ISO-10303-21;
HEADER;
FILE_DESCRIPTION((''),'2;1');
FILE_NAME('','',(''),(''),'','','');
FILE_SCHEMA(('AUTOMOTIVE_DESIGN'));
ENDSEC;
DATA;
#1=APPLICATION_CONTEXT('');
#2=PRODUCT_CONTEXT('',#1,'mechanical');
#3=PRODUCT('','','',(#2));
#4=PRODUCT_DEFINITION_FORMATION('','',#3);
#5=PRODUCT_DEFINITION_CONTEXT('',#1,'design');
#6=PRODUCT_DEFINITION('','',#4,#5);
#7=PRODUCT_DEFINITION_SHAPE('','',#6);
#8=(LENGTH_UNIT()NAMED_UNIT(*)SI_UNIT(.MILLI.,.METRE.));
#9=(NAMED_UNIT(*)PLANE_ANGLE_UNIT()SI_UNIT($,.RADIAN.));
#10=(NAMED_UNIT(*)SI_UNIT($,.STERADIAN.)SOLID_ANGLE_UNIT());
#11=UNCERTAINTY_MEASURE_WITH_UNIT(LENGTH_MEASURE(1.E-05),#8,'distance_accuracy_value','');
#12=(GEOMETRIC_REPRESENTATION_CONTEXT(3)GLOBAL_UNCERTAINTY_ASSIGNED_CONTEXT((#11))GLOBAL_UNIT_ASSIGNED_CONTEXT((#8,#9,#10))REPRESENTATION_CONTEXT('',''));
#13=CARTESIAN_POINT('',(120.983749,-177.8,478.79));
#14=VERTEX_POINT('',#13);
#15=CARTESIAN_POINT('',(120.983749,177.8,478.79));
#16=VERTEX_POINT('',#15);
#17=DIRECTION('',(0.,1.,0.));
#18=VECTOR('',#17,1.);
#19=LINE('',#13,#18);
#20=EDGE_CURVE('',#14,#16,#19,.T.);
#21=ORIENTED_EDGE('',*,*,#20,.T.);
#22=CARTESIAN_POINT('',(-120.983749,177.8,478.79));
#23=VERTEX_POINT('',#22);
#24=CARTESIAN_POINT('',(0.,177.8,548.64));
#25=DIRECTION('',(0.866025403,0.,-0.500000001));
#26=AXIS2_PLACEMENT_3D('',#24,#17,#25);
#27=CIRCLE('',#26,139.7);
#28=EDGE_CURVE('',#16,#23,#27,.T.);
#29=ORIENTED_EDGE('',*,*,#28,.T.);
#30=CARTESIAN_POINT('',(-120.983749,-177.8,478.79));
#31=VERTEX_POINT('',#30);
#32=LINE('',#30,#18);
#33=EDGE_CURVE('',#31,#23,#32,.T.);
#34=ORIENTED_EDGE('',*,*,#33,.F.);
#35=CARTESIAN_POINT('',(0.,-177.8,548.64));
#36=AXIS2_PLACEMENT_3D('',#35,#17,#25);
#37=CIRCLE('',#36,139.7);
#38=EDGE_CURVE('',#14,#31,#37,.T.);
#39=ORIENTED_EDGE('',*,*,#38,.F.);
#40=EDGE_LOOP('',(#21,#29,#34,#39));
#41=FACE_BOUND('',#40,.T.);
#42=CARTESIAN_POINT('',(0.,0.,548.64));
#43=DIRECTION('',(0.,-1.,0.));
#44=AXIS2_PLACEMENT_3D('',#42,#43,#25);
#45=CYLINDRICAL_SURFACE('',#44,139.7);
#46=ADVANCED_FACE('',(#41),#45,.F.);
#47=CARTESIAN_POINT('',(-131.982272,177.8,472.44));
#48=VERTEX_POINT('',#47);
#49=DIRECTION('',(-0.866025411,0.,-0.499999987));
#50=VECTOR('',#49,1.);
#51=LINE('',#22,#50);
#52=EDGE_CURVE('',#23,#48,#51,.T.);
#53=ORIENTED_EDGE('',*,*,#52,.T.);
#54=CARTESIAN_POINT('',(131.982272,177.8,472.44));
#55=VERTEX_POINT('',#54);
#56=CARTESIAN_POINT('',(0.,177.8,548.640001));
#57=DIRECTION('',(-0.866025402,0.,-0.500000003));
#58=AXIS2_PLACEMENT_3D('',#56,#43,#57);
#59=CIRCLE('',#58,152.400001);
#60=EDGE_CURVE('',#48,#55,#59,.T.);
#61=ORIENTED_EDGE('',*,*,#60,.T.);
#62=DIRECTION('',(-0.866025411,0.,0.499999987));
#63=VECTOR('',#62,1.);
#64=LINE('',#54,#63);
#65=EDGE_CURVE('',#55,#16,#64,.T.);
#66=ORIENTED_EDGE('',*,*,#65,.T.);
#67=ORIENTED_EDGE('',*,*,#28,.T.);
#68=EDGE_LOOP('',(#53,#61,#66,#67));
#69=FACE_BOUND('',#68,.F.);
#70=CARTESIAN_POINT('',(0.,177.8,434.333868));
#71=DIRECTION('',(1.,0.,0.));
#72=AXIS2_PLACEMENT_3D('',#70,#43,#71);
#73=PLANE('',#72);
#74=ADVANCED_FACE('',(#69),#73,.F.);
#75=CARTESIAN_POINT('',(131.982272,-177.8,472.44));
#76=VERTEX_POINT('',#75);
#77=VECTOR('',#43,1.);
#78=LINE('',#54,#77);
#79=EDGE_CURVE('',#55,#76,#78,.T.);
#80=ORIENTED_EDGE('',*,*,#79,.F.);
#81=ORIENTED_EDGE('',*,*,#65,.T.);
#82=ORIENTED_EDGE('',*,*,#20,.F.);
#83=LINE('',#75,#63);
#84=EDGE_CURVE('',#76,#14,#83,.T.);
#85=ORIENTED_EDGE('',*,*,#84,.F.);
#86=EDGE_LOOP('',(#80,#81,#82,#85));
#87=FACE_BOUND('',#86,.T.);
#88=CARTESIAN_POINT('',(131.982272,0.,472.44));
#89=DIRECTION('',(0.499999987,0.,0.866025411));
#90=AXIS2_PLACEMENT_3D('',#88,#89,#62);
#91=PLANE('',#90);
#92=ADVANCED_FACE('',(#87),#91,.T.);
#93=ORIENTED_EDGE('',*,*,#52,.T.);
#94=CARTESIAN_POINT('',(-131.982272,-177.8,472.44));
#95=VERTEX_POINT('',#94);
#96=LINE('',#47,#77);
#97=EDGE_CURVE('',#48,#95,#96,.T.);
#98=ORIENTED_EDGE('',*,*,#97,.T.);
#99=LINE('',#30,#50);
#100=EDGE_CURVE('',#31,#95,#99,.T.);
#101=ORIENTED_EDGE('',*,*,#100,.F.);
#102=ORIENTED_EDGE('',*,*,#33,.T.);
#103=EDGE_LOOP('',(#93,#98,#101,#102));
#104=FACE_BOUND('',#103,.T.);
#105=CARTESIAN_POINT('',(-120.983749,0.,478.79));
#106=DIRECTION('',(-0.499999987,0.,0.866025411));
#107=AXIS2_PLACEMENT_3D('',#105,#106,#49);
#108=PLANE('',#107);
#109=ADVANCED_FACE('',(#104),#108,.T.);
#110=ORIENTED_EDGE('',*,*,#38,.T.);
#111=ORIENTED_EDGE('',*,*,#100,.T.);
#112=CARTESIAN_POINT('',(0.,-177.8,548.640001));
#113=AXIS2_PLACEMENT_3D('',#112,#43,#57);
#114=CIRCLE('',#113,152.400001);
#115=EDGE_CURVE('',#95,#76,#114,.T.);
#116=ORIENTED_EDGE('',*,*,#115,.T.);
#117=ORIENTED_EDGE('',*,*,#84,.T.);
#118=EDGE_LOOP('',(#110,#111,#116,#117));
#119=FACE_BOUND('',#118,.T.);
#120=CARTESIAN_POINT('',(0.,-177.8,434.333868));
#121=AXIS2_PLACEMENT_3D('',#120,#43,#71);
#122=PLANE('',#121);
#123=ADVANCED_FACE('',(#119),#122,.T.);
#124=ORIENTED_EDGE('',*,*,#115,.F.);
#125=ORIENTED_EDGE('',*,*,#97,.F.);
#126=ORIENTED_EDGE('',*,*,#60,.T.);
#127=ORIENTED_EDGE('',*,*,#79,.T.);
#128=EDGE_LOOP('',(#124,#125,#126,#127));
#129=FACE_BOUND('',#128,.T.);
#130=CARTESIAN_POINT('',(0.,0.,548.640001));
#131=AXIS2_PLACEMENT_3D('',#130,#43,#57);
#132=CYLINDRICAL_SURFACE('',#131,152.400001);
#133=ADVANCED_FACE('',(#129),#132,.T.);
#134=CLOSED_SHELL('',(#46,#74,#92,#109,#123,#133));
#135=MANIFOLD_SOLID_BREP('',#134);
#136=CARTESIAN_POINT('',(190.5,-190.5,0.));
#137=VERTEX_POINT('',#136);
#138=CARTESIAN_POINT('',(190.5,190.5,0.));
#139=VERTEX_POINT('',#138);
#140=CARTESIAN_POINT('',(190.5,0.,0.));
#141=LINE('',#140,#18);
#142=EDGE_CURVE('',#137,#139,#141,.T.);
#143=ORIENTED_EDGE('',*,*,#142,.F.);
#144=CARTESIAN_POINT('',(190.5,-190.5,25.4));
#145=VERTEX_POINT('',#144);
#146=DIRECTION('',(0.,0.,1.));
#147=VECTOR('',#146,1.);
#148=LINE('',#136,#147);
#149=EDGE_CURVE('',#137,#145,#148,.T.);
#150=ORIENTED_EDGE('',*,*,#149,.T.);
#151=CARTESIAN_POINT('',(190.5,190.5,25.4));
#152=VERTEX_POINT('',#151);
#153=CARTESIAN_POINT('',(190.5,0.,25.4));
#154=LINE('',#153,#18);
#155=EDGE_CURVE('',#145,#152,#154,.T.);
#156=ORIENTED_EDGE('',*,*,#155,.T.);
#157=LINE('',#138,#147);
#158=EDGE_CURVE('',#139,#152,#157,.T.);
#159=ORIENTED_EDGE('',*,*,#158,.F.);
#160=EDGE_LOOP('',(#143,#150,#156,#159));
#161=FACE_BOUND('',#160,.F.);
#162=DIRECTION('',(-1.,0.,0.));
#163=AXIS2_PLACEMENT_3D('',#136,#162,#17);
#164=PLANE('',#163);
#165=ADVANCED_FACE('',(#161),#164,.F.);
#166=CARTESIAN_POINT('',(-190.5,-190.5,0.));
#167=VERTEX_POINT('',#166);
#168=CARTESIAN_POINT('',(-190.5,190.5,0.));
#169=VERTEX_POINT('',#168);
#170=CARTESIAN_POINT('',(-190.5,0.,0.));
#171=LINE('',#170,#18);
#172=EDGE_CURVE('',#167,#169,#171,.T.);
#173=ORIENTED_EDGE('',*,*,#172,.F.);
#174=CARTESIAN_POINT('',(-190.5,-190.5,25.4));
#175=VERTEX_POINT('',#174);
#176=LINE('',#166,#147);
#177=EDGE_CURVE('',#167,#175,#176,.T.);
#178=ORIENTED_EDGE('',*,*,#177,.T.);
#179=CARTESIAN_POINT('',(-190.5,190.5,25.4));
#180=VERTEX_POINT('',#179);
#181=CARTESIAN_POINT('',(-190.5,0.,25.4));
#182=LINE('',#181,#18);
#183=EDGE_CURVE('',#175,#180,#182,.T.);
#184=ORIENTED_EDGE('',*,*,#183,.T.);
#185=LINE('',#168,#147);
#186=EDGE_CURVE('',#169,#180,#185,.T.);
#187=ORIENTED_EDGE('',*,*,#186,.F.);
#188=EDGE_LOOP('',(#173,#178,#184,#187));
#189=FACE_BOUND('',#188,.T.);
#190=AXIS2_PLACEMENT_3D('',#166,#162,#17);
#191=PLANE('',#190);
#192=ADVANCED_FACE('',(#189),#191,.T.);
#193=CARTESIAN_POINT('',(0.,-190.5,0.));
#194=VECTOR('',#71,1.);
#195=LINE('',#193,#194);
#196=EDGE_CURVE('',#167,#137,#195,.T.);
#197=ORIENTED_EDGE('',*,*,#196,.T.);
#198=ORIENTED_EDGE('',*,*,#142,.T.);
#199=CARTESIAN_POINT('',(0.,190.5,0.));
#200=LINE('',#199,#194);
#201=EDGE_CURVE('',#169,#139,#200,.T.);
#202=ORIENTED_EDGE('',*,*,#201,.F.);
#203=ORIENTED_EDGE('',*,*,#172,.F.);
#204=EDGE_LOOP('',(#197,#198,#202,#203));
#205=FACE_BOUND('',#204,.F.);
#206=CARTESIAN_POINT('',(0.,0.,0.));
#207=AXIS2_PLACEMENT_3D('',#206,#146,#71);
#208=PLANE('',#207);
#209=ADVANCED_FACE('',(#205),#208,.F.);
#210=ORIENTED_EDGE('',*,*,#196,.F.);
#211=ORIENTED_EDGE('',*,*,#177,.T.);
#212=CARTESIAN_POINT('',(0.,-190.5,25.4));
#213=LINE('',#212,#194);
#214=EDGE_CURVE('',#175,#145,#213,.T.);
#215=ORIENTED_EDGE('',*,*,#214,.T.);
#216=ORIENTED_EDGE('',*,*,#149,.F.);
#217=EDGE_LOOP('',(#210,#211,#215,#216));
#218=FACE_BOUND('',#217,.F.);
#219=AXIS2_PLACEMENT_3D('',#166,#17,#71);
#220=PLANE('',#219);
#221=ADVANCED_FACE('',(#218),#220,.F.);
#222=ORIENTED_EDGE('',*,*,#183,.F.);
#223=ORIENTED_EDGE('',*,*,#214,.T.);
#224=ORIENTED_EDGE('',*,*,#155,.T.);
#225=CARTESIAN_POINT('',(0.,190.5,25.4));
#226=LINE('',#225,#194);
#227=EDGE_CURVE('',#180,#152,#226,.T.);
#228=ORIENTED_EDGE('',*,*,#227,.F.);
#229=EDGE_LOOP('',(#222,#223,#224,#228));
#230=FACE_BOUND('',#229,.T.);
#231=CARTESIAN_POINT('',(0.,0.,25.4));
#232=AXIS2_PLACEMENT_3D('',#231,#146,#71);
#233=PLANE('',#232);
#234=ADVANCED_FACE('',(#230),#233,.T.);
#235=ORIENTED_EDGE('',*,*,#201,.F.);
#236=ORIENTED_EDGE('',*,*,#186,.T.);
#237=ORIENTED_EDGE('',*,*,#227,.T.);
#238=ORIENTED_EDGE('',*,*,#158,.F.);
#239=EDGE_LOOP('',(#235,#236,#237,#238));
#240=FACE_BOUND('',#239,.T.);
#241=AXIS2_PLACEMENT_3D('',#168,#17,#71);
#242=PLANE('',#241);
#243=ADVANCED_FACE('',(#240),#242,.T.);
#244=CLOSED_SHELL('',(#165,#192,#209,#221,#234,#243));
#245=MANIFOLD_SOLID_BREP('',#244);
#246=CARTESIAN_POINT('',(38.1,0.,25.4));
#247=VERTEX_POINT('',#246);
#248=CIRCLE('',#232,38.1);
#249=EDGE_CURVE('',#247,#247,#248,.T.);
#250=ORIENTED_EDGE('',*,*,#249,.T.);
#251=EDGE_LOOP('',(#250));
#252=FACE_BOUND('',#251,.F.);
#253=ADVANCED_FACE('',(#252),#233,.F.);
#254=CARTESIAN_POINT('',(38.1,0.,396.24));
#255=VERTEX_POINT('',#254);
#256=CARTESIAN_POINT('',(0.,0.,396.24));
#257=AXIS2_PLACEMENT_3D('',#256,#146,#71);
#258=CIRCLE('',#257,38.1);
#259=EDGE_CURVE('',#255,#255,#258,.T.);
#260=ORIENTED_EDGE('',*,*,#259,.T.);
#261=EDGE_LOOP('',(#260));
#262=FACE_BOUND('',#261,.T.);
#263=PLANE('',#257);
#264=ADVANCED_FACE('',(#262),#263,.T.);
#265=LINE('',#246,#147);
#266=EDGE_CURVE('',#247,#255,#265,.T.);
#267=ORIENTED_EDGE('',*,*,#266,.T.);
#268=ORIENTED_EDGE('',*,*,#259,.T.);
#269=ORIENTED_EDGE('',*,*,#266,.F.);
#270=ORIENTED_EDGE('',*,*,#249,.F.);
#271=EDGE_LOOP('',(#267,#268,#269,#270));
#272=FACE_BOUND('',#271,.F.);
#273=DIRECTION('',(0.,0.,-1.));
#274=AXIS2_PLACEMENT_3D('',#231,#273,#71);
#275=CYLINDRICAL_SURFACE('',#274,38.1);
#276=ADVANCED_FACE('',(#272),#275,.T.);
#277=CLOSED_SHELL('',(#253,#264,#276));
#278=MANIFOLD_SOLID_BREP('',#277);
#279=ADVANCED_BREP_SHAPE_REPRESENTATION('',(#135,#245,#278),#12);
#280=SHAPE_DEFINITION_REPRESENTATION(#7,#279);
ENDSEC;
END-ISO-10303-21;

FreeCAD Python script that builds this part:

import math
import FreeCAD as App
import Part
import Sketcher

V = App.Vector
Q = App.Units.Quantity

doc = App.newDocument("Part")
body = doc.addObject("PartDesign::Body", "Body")

# Sketch on XY plane
sketch1 = body.newObject("Sketcher::SketchObject", "Sketch")
sketch1.AttachmentSupport = (doc.getObject("XY_Plane"), [""])
sketch1.MapMode = "FlatFace"
sketch1.addGeometry([
    Part.LineSegment(V(-190.5, 190.5, 0), V(-190.5, -190.5, 0)),
    Part.LineSegment(V(-190.5, -190.5, 0), V(190.5, -190.5, 0)),
    Part.LineSegment(V(190.5, -190.5, 0), V(190.5, 190.5, 0)),
    Part.LineSegment(V(190.5, 190.5, 0), V(-190.5, 190.5, 0)),
], False)
sketch1.addConstraint([
    Sketcher.Constraint("Coincident", 0, 2, 1, 1),
    Sketcher.Constraint("Coincident", 1, 2, 2, 1),
    Sketcher.Constraint("Coincident", 2, 2, 3, 1),
    Sketcher.Constraint("Coincident", 3, 2, 0, 1),
    Sketcher.Constraint("Vertical", 0),
    Sketcher.Constraint("Horizontal", 1),
    Sketcher.Constraint("Vertical", 2),
    Sketcher.Constraint("Horizontal", 3),
    Sketcher.Constraint("Symmetric", 0, 2, 2, 2, -1, 1),
    Sketcher.Constraint("Equal", 3, 0),
    Sketcher.Constraint("DistanceX", 1, 1, 1, 2, Q("15 in")),
])
pad1 = body.newObject("PartDesign::Pad", "Pad")
pad1.Profile = sketch1
pad1.Length = Q("1 in")
body2 = doc.addObject("PartDesign::Body", "Body001")

# Sketch on XY plane
sketch2 = body2.newObject("Sketcher::SketchObject", "Sketch001")
sketch2.AttachmentSupport = (doc.getObject("XY_Plane001"), [""])
sketch2.MapMode = "FlatFace"
sketch2.AttachmentOffset = App.Placement(V(0, 0, 1 * 25.4), App.Rotation())
sketch2.addGeometry(Part.Circle(V(0, 0, 0), V(0, 0, 1), 38.1), False)
sketch2.addConstraint([
    Sketcher.Constraint("Coincident", 0, 3, -1, 1),
    Sketcher.Constraint("Diameter", 0, Q("3 in")),
])
pad2 = body2.newObject("PartDesign::Pad", "Pad001")
pad2.Profile = sketch2
pad2.Length = Q("14.6 in")
body3 = doc.addObject("PartDesign::Body", "Body002")

# Sketch on XZ plane
sketch3 = body3.newObject("Sketcher::SketchObject", "Sketch002")
sketch3.AttachmentSupport = (doc.getObject("XZ_Plane002"), [""])
sketch3.MapMode = "FlatFace"
sketch3.addGeometry([
    Part.LineSegment(V(-120.983749, 478.79, 0), V(-131.982272, 472.44, 0)),
    Part.ArcOfCircle(Part.Circle(V(0, 548.640001, 0), V(0, 0, 1), 152.400001), math.radians(-150), math.radians(-30)),
    Part.LineSegment(V(131.982272, 472.44, 0), V(120.983749, 478.79, 0)),
    Part.ArcOfCircle(Part.Circle(V(0, 548.64, 0), V(0, 0, 1), 139.7), math.radians(-150), math.radians(-30)),
], False)
sketch3.addConstraint([
    Sketcher.Constraint("Coincident", 0, 2, 1, 1),
    Sketcher.Constraint("Coincident", 1, 2, 2, 1),
    Sketcher.Constraint("Coincident", 2, 2, 3, 2),
    Sketcher.Constraint("Coincident", 3, 1, 0, 1),
    Sketcher.Constraint("Coincident", 3, 3, 1, 3),
    Sketcher.Constraint("Symmetric", 0, 2, 1, 2, -2),
    Sketcher.Constraint("Horizontal", 2, 2, 3, 1),
    Sketcher.Constraint("Radius", 1, Q("6 in")),
    Sketcher.Constraint("Radius", 3, Q("5.5 in")),
    Sketcher.Constraint("Angle", 0, Q("-150.000001 deg")),
    Sketcher.Constraint("DistanceY", 0, 2, 3, 3, Q("3 in")),
    Sketcher.Constraint("DistanceY", -1, 1, 1, 3, Q("21.6 in")),
])
pad3 = body3.newObject("PartDesign::Pad", "Pad002")
pad3.Profile = sketch3
pad3.Length = Q("14 in")
pad3.Midplane = True

doc.recompute()
